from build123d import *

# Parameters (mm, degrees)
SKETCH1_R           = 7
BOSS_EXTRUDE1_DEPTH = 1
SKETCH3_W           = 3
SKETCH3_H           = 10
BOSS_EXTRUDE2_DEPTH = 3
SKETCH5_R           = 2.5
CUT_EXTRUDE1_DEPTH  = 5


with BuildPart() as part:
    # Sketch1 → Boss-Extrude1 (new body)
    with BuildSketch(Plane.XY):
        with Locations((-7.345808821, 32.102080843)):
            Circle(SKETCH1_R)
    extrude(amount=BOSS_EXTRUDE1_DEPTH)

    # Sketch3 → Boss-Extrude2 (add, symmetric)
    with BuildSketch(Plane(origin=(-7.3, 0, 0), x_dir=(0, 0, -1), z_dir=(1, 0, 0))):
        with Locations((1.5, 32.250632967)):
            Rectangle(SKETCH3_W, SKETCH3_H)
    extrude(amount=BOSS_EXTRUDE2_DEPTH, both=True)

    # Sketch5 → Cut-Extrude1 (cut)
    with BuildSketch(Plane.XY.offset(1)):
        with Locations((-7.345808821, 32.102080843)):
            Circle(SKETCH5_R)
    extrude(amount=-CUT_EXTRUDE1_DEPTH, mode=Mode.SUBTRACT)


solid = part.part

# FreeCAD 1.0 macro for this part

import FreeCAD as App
import Part
import Sketcher
from FreeCAD import Vector
Q = App.Units.Quantity


def add_polygon(sketch, points):
    """Adds a closed chain of lines whose ends are joined by coincident constraints."""
    first, n = sketch.GeometryCount, len(points)
    for a, b in zip(points, points[1:] + points[:1]):
        sketch.addGeometry(Part.LineSegment(App.Vector(*a, 0), App.Vector(*b, 0)), False)
    for i in range(n):
        sketch.addConstraint(Sketcher.Constraint("Coincident", first + i, 2, first + (i + 1) % n, 1))

doc = App.newDocument("Part")
body = doc.addObject("PartDesign::Body", "Body")

sketch1 = doc.addObject("Sketcher::SketchObject", "Sketch")
body.addObject(sketch1)
sketch1.AttachmentSupport = (doc.XY_Plane, [""])
sketch1.MapMode = "FlatFace"
sketch1.addGeometry(Part.Circle(Vector(-7, 32, 0), Vector(0, 0, 1), 7), False)
sketch1.addConstraint([
    Sketcher.Constraint("Diameter", 0, Q("14 mm")),
    Sketcher.Constraint("DistanceX", 0, 3, -1, 1, Q("7.345809 mm")),
    Sketcher.Constraint("DistanceY", -1, 1, 0, 3, Q("32.102081 mm")),
])
pad1 = doc.addObject("PartDesign::Pad", "Pad")
body.addObject(pad1)
pad1.Profile = sketch1
pad1.Length = 1

sketch2 = doc.addObject("Sketcher::SketchObject", "Sketch001")
body.addObject(sketch2)
sketch2.AttachmentSupport = (doc.YZ_Plane, [""])
sketch2.MapMode = "FlatFace"
sketch2.AttachmentOffset = App.Placement(Vector(0, 0, -7.3), App.Rotation())
add_polygon(sketch2, [(37.3, 0), (27.3, 0), (27.3, -3), (37.3, -3)])
sketch2.addConstraint([
    Sketcher.Constraint("Horizontal", 0),
    Sketcher.Constraint("Vertical", 1),
    Sketcher.Constraint("Horizontal", 2),
    Sketcher.Constraint("Vertical", 3),
    Sketcher.Constraint("PointOnObject", 0, 2, -1),
    Sketcher.Constraint("DistanceX", 0, 2, 0, 1, Q("10 mm")),
    Sketcher.Constraint("DistanceY", 1, 2, 1, 1, Q("3 mm")),
    Sketcher.Constraint("DistanceX", -1, 1, 0, 2, Q("27.250633 mm")),
])
pad2 = doc.addObject("PartDesign::Pad", "Pad001")
body.addObject(pad2)
pad2.Profile = sketch2
pad2.Length = 6
pad2.Midplane = True

sketch3 = doc.addObject("Sketcher::SketchObject", "Sketch002")
body.addObject(sketch3)
sketch3.AttachmentSupport = (doc.XY_Plane, [""])
sketch3.MapMode = "FlatFace"
sketch3.AttachmentOffset = App.Placement(Vector(0, 0, 1), App.Rotation())
sketch3.addGeometry(Part.Circle(Vector(-7.3, 32.1, 0), Vector(0, 0, 1), 2.5), False)
sketch3.addConstraint([
    Sketcher.Constraint("Diameter", 0, Q("5 mm")),
    Sketcher.Constraint("DistanceX", 0, 3, -1, 1, Q("7.345809 mm")),
    Sketcher.Constraint("DistanceY", -1, 1, 0, 3, Q("32.102081 mm")),
])
pocket1 = doc.addObject("PartDesign::Pocket", "Pocket")
body.addObject(pocket1)
pocket1.Profile = sketch3
pocket1.Length = 5

doc.recompute()
